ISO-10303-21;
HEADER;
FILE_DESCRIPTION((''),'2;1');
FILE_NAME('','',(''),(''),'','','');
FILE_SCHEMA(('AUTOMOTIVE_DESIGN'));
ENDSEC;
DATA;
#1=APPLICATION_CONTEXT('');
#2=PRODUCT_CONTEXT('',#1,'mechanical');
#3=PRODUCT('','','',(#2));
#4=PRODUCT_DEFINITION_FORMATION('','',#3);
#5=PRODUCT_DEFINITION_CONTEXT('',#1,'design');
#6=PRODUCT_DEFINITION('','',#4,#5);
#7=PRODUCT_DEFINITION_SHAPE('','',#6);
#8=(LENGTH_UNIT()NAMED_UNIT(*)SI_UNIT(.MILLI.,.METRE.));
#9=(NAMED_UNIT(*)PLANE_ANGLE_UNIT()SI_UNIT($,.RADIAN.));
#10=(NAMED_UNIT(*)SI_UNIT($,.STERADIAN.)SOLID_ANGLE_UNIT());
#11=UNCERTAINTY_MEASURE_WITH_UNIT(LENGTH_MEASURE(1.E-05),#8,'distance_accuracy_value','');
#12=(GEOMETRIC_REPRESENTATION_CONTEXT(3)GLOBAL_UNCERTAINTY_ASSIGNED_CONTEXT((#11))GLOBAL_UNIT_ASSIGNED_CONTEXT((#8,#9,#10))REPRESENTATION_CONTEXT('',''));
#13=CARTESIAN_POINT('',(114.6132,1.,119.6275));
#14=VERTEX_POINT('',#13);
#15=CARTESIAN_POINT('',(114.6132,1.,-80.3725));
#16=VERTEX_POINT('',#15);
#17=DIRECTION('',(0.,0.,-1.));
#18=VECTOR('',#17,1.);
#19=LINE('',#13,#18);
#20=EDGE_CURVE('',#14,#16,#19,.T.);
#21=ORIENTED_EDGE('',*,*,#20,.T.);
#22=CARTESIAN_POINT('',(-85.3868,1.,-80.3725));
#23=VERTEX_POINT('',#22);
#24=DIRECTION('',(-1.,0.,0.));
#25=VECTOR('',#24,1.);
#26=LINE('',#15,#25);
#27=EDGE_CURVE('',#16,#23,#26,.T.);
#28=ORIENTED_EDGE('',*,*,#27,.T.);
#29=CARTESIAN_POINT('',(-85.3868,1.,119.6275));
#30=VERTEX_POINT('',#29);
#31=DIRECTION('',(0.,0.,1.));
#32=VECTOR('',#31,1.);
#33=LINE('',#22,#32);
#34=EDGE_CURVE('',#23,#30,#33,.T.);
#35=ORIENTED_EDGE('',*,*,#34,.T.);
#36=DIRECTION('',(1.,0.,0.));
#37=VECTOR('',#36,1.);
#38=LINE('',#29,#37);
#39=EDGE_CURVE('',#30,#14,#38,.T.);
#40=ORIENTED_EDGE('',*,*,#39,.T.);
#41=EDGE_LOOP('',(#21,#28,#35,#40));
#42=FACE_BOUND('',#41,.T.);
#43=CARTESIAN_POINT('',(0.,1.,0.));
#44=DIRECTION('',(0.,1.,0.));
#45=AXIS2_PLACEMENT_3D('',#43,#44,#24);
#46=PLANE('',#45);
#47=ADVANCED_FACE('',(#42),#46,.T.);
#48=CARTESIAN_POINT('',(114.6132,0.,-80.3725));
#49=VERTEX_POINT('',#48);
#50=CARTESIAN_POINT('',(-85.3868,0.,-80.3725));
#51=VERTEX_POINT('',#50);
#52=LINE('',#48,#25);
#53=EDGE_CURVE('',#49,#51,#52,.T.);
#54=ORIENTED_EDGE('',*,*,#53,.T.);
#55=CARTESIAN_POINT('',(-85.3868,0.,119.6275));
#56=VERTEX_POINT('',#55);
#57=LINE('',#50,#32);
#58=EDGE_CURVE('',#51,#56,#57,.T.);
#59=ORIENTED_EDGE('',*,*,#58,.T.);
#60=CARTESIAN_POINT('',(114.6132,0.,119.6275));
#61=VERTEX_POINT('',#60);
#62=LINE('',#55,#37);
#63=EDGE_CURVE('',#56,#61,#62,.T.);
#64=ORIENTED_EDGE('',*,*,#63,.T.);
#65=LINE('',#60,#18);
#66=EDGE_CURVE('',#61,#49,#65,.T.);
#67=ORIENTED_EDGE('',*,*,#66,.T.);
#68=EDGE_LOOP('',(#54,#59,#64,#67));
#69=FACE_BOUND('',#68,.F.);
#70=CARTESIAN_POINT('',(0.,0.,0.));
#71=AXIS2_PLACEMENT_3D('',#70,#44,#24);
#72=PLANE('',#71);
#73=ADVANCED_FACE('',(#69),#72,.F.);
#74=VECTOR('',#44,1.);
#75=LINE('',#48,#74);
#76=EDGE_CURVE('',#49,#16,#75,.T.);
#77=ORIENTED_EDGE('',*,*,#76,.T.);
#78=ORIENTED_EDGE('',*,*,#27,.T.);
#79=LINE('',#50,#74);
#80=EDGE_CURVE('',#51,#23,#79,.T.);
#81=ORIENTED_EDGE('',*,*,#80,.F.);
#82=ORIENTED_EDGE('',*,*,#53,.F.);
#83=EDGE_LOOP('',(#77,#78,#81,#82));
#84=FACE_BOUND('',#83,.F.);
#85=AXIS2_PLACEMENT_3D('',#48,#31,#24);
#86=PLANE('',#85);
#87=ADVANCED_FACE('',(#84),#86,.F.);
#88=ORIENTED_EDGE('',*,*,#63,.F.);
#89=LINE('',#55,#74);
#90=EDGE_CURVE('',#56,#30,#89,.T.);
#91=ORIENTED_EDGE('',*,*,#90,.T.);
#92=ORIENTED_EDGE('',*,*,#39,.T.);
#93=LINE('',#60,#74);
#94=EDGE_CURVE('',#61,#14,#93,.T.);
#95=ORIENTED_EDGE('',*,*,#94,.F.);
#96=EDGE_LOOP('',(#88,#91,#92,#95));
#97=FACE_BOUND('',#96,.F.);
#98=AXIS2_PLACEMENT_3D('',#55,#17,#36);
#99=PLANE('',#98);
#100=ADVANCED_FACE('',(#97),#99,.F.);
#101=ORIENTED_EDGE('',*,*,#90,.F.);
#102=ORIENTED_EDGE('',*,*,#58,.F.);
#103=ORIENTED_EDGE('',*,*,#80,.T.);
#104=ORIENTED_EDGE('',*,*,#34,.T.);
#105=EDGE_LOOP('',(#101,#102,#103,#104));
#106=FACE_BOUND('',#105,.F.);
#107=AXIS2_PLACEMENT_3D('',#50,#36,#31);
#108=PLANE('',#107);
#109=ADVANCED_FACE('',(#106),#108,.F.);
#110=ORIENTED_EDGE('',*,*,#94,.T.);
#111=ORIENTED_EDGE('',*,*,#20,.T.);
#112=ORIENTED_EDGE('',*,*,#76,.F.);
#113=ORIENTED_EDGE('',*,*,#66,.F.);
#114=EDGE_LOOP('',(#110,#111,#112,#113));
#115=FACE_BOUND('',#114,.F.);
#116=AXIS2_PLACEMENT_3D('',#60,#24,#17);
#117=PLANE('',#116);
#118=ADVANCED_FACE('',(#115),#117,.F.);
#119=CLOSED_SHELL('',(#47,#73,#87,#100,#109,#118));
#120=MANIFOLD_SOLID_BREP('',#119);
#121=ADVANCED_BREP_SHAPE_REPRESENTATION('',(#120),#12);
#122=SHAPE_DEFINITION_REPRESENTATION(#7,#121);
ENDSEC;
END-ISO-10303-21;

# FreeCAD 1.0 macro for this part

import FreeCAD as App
import Part
import Sketcher

V = App.Vector
Q = App.Units.Quantity


def add_polygon(sketch, points):
    """Adds a closed chain of lines whose ends are joined by coincident constraints."""
    first, n = sketch.GeometryCount, len(points)
    for a, b in zip(points, points[1:] + points[:1]):
        sketch.addGeometry(Part.LineSegment(App.Vector(*a, 0), App.Vector(*b, 0)), False)
    for i in range(n):
        sketch.addConstraint(Sketcher.Constraint("Coincident", first + i, 2, first + (i + 1) % n, 1))

doc = App.newDocument("Part")
body = doc.addObject("PartDesign::Body", "Body")

# Sketch on XZ plane
sketch1 = body.newObject("Sketcher::SketchObject", "Sketch")
sketch1.AttachmentSupport = (doc.getObject("XZ_Plane"), [""])
sketch1.MapMode = "FlatFace"
add_polygon(sketch1, [(-85, -80), (-85, 120), (115, 120), (115, -80)])  # lines 0-3
sketch1.addConstraint([
    Sketcher.Constraint("Vertical", 0),
    Sketcher.Constraint("Horizontal", 1),
    Sketcher.Constraint("Vertical", 2),
    Sketcher.Constraint("Horizontal", 3),
    Sketcher.Constraint("Equal", 3, 0),
    Sketcher.Constraint("DistanceX", 1, 1, 1, 2, Q("200 mm")),
    Sketcher.Constraint("DistanceX", 0, 2, -1, 1, Q("85.3868 mm")),
    Sketcher.Constraint("DistanceY", -1, 1, 0, 2, Q("119.6275 mm")),
])
pad1 = body.newObject("PartDesign::Pad", "Pad")
pad1.Profile = sketch1
pad1.Length = 1
pad1.Reversed = True

doc.recompute()
